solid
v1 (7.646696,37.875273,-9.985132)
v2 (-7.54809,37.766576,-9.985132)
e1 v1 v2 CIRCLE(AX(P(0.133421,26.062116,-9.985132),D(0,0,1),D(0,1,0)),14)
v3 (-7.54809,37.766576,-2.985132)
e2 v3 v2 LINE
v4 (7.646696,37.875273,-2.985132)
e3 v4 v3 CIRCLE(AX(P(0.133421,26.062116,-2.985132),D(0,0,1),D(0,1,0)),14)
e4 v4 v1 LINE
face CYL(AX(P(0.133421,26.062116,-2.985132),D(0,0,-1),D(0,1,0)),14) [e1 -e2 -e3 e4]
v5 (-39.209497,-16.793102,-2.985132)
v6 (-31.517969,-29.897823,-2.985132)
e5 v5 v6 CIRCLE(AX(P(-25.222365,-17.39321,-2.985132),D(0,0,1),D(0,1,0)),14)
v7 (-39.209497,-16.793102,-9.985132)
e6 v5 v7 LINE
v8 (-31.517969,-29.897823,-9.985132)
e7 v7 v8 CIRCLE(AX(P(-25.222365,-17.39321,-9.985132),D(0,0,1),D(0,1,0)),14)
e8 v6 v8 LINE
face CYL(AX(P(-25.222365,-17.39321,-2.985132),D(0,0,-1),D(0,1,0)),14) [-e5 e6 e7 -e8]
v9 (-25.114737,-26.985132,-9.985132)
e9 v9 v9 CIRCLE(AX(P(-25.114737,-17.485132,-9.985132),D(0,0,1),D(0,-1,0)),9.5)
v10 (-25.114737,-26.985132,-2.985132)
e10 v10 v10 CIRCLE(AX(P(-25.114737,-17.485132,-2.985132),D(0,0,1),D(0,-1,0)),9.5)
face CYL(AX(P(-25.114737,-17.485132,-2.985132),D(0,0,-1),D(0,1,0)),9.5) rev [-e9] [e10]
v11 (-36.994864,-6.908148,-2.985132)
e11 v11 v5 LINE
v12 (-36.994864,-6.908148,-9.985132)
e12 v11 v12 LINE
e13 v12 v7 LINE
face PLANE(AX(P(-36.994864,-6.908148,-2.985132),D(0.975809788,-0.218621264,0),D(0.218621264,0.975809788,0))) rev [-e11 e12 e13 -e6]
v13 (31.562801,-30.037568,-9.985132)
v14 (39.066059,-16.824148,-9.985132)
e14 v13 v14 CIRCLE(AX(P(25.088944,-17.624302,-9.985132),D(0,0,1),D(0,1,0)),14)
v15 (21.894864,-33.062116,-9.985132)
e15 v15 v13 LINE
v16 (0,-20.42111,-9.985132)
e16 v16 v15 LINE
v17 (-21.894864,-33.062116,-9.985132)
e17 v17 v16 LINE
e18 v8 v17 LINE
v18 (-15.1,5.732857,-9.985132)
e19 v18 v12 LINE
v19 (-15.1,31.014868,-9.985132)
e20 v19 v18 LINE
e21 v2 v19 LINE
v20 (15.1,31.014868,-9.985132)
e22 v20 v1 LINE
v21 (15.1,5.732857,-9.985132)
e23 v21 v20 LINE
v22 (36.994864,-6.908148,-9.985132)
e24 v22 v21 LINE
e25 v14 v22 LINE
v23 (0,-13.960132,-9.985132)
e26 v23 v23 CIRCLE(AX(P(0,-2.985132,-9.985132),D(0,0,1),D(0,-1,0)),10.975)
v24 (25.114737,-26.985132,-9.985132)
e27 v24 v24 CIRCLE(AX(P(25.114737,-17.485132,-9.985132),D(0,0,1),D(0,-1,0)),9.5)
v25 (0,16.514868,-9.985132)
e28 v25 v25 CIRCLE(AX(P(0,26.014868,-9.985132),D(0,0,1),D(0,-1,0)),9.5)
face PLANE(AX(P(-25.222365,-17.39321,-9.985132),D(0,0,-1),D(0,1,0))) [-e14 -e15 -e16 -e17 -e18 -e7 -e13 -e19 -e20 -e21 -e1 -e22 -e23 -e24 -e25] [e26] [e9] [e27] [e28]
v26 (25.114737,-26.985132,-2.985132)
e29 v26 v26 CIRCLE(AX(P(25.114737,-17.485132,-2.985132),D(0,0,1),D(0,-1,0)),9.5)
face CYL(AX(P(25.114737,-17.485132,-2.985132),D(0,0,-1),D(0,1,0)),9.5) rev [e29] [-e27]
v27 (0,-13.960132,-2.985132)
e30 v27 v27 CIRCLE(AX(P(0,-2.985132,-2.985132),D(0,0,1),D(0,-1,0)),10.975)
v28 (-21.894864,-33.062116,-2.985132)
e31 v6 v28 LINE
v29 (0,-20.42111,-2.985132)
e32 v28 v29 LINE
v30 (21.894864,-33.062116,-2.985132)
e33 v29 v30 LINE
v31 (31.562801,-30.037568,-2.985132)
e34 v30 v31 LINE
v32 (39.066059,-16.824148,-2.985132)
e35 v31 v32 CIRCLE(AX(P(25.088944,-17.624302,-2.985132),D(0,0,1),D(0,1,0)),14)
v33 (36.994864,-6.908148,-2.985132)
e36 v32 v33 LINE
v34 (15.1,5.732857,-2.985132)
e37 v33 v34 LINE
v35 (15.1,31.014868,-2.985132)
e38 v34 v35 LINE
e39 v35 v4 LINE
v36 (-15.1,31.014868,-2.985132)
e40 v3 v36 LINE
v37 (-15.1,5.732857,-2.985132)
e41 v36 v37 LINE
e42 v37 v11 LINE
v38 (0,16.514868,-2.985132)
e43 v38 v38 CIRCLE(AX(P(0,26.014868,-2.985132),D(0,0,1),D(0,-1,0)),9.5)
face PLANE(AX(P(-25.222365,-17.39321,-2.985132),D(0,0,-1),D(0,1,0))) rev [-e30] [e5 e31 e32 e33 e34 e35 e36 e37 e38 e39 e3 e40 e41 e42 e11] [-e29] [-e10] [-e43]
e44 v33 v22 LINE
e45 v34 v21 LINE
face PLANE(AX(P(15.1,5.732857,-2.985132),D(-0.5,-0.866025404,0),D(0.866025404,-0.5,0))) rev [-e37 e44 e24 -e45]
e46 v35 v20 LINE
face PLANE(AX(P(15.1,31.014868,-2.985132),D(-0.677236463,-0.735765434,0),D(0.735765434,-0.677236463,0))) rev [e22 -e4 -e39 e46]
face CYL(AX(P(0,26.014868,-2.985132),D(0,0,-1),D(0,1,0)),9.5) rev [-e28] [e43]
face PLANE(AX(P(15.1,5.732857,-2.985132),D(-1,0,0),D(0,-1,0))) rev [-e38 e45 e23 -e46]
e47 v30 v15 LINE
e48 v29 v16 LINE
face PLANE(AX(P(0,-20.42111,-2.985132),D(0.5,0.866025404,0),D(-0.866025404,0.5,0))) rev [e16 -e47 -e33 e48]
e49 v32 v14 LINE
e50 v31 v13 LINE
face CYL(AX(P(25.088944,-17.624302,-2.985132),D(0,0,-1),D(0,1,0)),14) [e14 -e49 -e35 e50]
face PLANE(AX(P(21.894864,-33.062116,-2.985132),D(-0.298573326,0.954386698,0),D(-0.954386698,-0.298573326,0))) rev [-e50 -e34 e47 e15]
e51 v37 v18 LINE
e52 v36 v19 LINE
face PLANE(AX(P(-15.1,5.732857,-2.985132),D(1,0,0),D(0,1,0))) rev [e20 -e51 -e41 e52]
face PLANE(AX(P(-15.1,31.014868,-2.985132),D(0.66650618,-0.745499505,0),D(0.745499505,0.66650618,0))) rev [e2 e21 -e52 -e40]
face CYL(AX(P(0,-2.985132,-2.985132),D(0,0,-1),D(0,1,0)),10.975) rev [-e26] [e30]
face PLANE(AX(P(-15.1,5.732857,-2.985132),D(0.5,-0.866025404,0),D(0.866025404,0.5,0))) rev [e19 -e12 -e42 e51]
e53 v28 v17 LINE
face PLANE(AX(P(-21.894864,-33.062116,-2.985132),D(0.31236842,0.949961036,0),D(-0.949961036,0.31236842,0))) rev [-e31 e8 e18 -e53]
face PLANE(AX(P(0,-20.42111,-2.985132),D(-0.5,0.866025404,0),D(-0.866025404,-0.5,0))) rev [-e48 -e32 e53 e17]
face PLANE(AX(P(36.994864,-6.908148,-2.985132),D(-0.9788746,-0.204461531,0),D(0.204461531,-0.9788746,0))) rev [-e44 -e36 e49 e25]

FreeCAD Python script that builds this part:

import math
import FreeCAD as App
import Part
import Sketcher
Q = App.Units.Quantity

doc = App.newDocument("Part")
params = doc.addObject("Spreadsheet::Sheet", "Params")
for row, (alias, value) in enumerate([
    ("sketch1_diameter", "19 mm"),
    ("sketch1_radius", "14 mm"),
    ("sketch1_diameter2", "21.95 mm"),
    ("sketch1_length", "10.13 mm"),
    ("pad1_length", "7 mm"),
], start=1):
    params.set(f"A{row}", alias)
    params.set(f"B{row}", "=" + value)
    params.setAlias(f"B{row}", alias)

body = doc.addObject("PartDesign::Body", "Body")

sketch1 = body.newObject("Sketcher::SketchObject", "Sketch")
sketch1.AttachmentSupport = (doc.getObject("XZ_Plane"), [""])
sketch1.MapMode = "FlatFace"
sketch1.addGeometry([
    Part.LineSegment(App.Vector(15.1, -8.717989, 0), App.Vector(15.1, -34, 0)),
    Part.LineSegment(App.Vector(15.1, -34, 0), App.Vector(7.646696, -40.860405, 0)),
    Part.ArcOfCircle(Part.Circle(App.Vector(0.133421, -29.047248, 0), App.Vector(0, 0, 1), 14), math.radians(-123.276459), math.radians(-57.543272)),
    Part.LineSegment(App.Vector(-7.54809, -40.751708, 0), App.Vector(-15.1, -34, 0)),
    Part.LineSegment(App.Vector(-15.1, -34, 0), App.Vector(-15.1, -8.717989, 0)),
    Part.LineSegment(App.Vector(-15.1, -8.717989, 0), App.Vector(-36.994864, 3.923016, 0)),
    Part.LineSegment(App.Vector(-36.994864, 3.923016, 0), App.Vector(-39.209497, 13.80797, 0)),
    Part.ArcOfCircle(Part.Circle(App.Vector(-25.222365, 14.408078, 0), App.Vector(0, 0, 1), 14), math.radians(116.723541), math.radians(182.456728)),
    Part.LineSegment(App.Vector(-31.517969, 26.912692, 0), App.Vector(-21.894864, 30.076984, 0)),
    Part.LineSegment(App.Vector(-21.894864, 30.076984, 0), App.Vector(0, 17.435978, 0)),
    Part.LineSegment(App.Vector(0, 17.435978, 0), App.Vector(21.894864, 30.076984, 0)),
    Part.LineSegment(App.Vector(21.894864, 30.076984, 0), App.Vector(31.562801, 27.052436, 0)),
    Part.ArcOfCircle(Part.Circle(App.Vector(25.088944, 14.63917, 0), App.Vector(0, 0, 1), 14), math.radians(-3.276459), math.radians(62.456728)),
    Part.LineSegment(App.Vector(39.066059, 13.839016, 0), App.Vector(36.994864, 3.923016, 0)),
    Part.LineSegment(App.Vector(36.994864, 3.923016, 0), App.Vector(15.1, -8.717989, 0)),
    Part.Circle(App.Vector(-25.114737, 14.5, 0), App.Vector(0, 0, 1), 9.5),
    Part.Circle(App.Vector(0, 0, 0), App.Vector(0, 0, 1), 10.975),
    Part.Circle(App.Vector(25.114737, 14.5, 0), App.Vector(0, 0, 1), 9.5),
    Part.Circle(App.Vector(0, -29, 0), App.Vector(0, 0, 1), 9.5),
], False)
sketch1.addConstraint([
    Sketcher.Constraint("Coincident", 0, 2, 1, 1),
    Sketcher.Constraint("Coincident", 1, 2, 2, 2),
    Sketcher.Constraint("Coincident", 2, 1, 3, 1),
    Sketcher.Constraint("Coincident", 3, 2, 4, 1),
    Sketcher.Constraint("Coincident", 4, 2, 5, 1),
    Sketcher.Constraint("Coincident", 5, 2, 6, 1),
    Sketcher.Constraint("Coincident", 6, 2, 7, 2),
    Sketcher.Constraint("Coincident", 7, 1, 8, 1),
    Sketcher.Constraint("Coincident", 8, 2, 9, 1),
    Sketcher.Constraint("Coincident", 9, 2, 10, 1),
    Sketcher.Constraint("Coincident", 10, 2, 11, 1),
    Sketcher.Constraint("Coincident", 11, 2, 12, 2),
    Sketcher.Constraint("Coincident", 12, 1, 13, 1),
    Sketcher.Constraint("Coincident", 13, 2, 14, 1),
    Sketcher.Constraint("Coincident", 14, 2, 0, 1),
    Sketcher.Constraint("Vertical", 0),
    Sketcher.Constraint("Vertical", 4),
    Sketcher.Constraint("Coincident", 16, 3, -1, 1),
    Sketcher.Constraint("Equal", 2, 7),
    Sketcher.Constraint("Equal", 7, 12),
    Sketcher.Constraint("Equal", 15, 17),
    Sketcher.Constraint("Equal", 17, 18),
    Sketcher.Constraint("Symmetric", 15, 3, 17, 3, -2),
    Sketcher.Constraint("Symmetric", 0, 2, 3, 2, -2),
    Sketcher.Constraint("Symmetric", 8, 2, 10, 2, -2),
    Sketcher.Constraint("Symmetric", 5, 2, 13, 2, -2),
    Sketcher.Constraint("PointOnObject", 18, 3, -2),
    Sketcher.Constraint("PointOnObject", 9, 2, -2),
    Sketcher.Constraint("Parallel", 5, 9),
    Sketcher.Constraint("Parallel", 10, 14),
    Sketcher.Constraint("Equal", 1, 3),
    Sketcher.Constraint("Equal", 3, 6),
    Sketcher.Constraint("Equal", 6, 8),
    Sketcher.Constraint("Equal", 5, 9),
    Sketcher.Constraint("Equal", 8, 11),
    Sketcher.Constraint("Equal", 11, 13),
    Sketcher.Constraint("Diameter", 15, Q("19 mm")),
    Sketcher.Constraint("Radius", 2, Q("14 mm")),
    Sketcher.Constraint("Diameter", 16, Q("21.95 mm")),
    Sketcher.Constraint("Angle", 5, Q("150 deg")),
    Sketcher.Constraint("DistanceY", 18, 3, -1, 1, Q("29 mm")),
    Sketcher.Constraint("DistanceY", 0, 2, -1, 1, Q("34 mm")),
    Sketcher.Constraint("DistanceY", -1, 1, 15, 3, Q("14.5 mm")),
    Sketcher.Constraint("DistanceX", -1, 1, 0, 2, Q("15.1 mm")),
    Sketcher.Constraint("Distance", 1, Q("10.13 mm")),
    Sketcher.Constraint("DistanceY", 13, 2, 12, 1, Q("9.916 mm")),
    Sketcher.Constraint("DistanceY", 0, 2, 0, 1, Q("25.282011 mm")),
    Sketcher.Constraint("DistanceX", -1, 1, 11, 2, Q("31.562801 mm")),
    Sketcher.Constraint("DistanceX", 7, 3, 17, 3, Q("50.337102 mm")),
    Sketcher.Constraint("DistanceX", 5, 2, 7, 3, Q("11.772499 mm")),
    Sketcher.Constraint("Distance", 5, Q("25.282011 mm")),
    Sketcher.Constraint("DistanceX", -1, 1, 2, 3, Q("0.133421 mm")),
    Sketcher.Constraint("DistanceY", -1, 1, 12, 3, Q("14.63917 mm")),
    Sketcher.Constraint("DistanceX", 2, 1, -1, 1, Q("7.54809 mm")),
    Sketcher.Constraint("DistanceY", -1, 1, 6, 2, Q("13.80797 mm")),
])
sketch1.setExpression("Constraints[36]", "Params.sketch1_diameter")
sketch1.setExpression("Constraints[37]", "Params.sketch1_radius")
sketch1.setExpression("Constraints[38]", "Params.sketch1_diameter2")
sketch1.setExpression("Constraints[44]", "Params.sketch1_length")
pad1 = body.newObject("PartDesign::Pad", "Pad")
pad1.Profile = sketch1
pad1.setExpression("Length", "Params.pad1_length")
pad1.Reversed = True
body2 = doc.addObject("PartDesign::Body", "Body001")
doc.recompute()

body.Placement = App.Placement(App.Vector(0, -2.985132, -9.985132), App.Rotation(App.Vector(1, 0, 0), 90))
boolean = body2.newObject("PartDesign::Boolean", "Boolean")
boolean.Type = "Fuse"
boolean.addObjects([body])

doc.recompute()
